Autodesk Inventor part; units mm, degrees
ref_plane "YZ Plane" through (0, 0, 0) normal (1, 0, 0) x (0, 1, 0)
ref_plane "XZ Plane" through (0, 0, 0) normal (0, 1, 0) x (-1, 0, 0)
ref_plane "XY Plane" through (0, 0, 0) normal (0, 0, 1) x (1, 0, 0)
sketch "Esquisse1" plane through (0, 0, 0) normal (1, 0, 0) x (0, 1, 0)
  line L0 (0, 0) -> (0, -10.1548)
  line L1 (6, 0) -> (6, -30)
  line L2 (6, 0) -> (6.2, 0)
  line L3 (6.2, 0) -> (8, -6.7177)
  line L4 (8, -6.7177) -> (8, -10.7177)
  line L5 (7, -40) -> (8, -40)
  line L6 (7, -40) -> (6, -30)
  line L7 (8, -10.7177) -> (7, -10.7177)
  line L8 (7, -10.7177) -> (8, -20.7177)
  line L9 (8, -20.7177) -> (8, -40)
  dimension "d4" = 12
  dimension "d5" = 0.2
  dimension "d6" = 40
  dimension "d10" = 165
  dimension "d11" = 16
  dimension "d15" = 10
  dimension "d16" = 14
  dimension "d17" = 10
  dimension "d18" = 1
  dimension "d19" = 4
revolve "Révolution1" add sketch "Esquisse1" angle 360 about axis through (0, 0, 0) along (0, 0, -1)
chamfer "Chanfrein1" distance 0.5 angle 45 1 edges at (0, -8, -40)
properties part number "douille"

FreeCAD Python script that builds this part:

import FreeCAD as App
import Part
import Sketcher
from FreeCAD import Vector
Q = App.Units.Quantity


def edges_at(feature, points):
    """Names of the edges that pass closest to the given points."""
    edges = feature.Shape.Edges
    near = lambda p: min(range(len(edges)), key=lambda i: edges[i].distToShape(Part.Vertex(*p))[0])
    return sorted({f"Edge{near(p) + 1}" for p in points})


def add_polygon(sketch, points):
    """Adds a closed chain of lines whose ends are joined by coincident constraints."""
    first, n = sketch.GeometryCount, len(points)
    for a, b in zip(points, points[1:] + points[:1]):
        sketch.addGeometry(Part.LineSegment(App.Vector(*a, 0), App.Vector(*b, 0)), False)
    for i in range(n):
        sketch.addConstraint(Sketcher.Constraint("Coincident", first + i, 2, first + (i + 1) % n, 1))

doc = App.newDocument("Part")
body = doc.addObject("PartDesign::Body", "Body")

sketch1 = body.newObject("Sketcher::SketchObject", "Sketch")
sketch1.AttachmentSupport = (doc.getObject("YZ_Plane"), [""])
sketch1.MapMode = "FlatFace"
add_polygon(sketch1, [(6.2, 0), (6, 0), (6, -30), (7, -40), (8, -40), (8, -20.72), (7, -10.72), (8, -10.72), (8, -6.72)])
sketch1.addConstraint([
    Sketcher.Constraint("Horizontal", 0),
    Sketcher.Constraint("Vertical", 1),
    Sketcher.Constraint("Horizontal", 3),
    Sketcher.Constraint("Vertical", 4),
    Sketcher.Constraint("Horizontal", 6),
    Sketcher.Constraint("Vertical", 7),
    Sketcher.Constraint("PointOnObject", 0, 2, -1),
    Sketcher.Constraint("Parallel", 2, 5),
    Sketcher.Constraint("Vertical", 2, 2, 5, 2),
    Sketcher.Constraint("Vertical", 4, 2, 6, 2),
    Sketcher.Constraint("Equal", 2, 5),
    Sketcher.Constraint("DistanceX", 3, 1, 3, 2, 1.0),
    Sketcher.Constraint("DistanceY", 7, 1, 7, 2, 4.0),
    Sketcher.Constraint("DistanceX", 0, 2, 0, 1, 0.2),
    Sketcher.Constraint("DistanceY", 2, 2, -1, 1, 40.0),
    Sketcher.Constraint("DistanceY", 2, 2, 1, 2, 10.0),
    Sketcher.Constraint("Angle", 8, Q("105 deg")),
    Sketcher.Constraint("DistanceX", -1, 1, 0, 2, 6.0),
])
revolution = body.newObject("PartDesign::Revolution", "Revolution")
revolution.Profile = sketch1
revolution.ReferenceAxis = (sketch1, ["V_Axis"])
revolution.Angle = 360
doc.recompute()

chamfer = body.newObject("PartDesign::Chamfer", "Chamfer")
chamfer.Base = (revolution, edges_at(revolution, [(0, -8, -40)]))
chamfer.Size = 0.5

doc.recompute()
